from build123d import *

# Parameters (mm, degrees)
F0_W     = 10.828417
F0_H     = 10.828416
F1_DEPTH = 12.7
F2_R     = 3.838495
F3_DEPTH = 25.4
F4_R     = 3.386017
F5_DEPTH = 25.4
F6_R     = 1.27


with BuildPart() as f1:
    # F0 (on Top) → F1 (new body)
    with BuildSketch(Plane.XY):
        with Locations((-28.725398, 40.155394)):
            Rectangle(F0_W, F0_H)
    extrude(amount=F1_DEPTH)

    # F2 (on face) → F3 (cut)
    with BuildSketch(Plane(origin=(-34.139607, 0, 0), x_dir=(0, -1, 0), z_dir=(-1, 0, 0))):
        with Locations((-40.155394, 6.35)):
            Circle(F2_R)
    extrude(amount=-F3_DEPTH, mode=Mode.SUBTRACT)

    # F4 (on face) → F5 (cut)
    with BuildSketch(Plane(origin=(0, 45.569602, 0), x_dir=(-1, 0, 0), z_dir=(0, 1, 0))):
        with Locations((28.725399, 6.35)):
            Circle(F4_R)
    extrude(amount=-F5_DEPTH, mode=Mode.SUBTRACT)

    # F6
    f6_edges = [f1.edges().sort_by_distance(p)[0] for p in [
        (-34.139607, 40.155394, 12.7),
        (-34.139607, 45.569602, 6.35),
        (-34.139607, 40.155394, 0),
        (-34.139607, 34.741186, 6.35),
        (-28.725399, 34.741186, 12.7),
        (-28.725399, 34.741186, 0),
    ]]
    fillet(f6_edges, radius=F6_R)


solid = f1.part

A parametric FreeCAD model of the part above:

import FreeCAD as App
import Part
import Sketcher
from FreeCAD import Vector
Q = App.Units.Quantity


def edges_at(feature, points):
    """Names of the edges that pass closest to the given points."""
    edges = feature.Shape.Edges
    near = lambda p: min(range(len(edges)), key=lambda i: edges[i].distToShape(Part.Vertex(*p))[0])
    return sorted({f"Edge{near(p) + 1}" for p in points})

doc = App.newDocument("Part")
params = doc.addObject("Spreadsheet::Sheet", "Params")
for row, (alias, value) in enumerate([
    ("pad1_length", "0.5 in"),
    ("pocket1_length", "1 in"),
    ("pocket2_length", "1 in"),
    ("fillet_radius", "0.05 in"),
], start=1):
    params.set(f"A{row}", alias)
    params.set(f"B{row}", "=" + value)
    params.setAlias(f"B{row}", alias)

body = doc.addObject("PartDesign::Body", "Body")

sketch1 = doc.addObject("Sketcher::SketchObject", "Sketch")
body.addObject(sketch1)
sketch1.AttachmentSupport = (doc.XY_Plane, [""])
sketch1.MapMode = "FlatFace"
sketch1.addGeometry(Part.LineSegment(Vector(-34.139606, 45.569602, 0), Vector(-34.139606, 34.741186, 0)), False)
sketch1.addGeometry(Part.LineSegment(Vector(-34.139606, 34.741186, 0), Vector(-23.31119, 34.741186, 0)), False)
sketch1.addGeometry(Part.LineSegment(Vector(-23.31119, 34.741186, 0), Vector(-23.31119, 45.569602, 0)), False)
sketch1.addGeometry(Part.LineSegment(Vector(-23.31119, 45.569602, 0), Vector(-34.139606, 45.569602, 0)), False)
sketch1.addConstraint(Sketcher.Constraint("Coincident", 0, 2, 1, 1))
sketch1.addConstraint(Sketcher.Constraint("Coincident", 1, 2, 2, 1))
sketch1.addConstraint(Sketcher.Constraint("Coincident", 2, 2, 3, 1))
sketch1.addConstraint(Sketcher.Constraint("Coincident", 3, 2, 0, 1))
sketch1.addConstraint(Sketcher.Constraint("Vertical", 0))
sketch1.addConstraint(Sketcher.Constraint("Horizontal", 1))
sketch1.addConstraint(Sketcher.Constraint("Vertical", 2))
sketch1.addConstraint(Sketcher.Constraint("Horizontal", 3))
sketch1.addConstraint(Sketcher.Constraint("Equal", 3, 0))
sketch1.addConstraint(Sketcher.Constraint("DistanceX", 1, 1, 1, 2, Q("10.828417 mm")))
sketch1.addConstraint(Sketcher.Constraint("DistanceX", 1, 2, -1, 1, Q("23.31119 mm")))
sketch1.addConstraint(Sketcher.Constraint("DistanceY", -1, 1, 0, 2, Q("34.741186 mm")))
pad1 = doc.addObject("PartDesign::Pad", "Pad")
body.addObject(pad1)
pad1.Profile = sketch1
pad1.setExpression("Length", "Params.pad1_length")

sketch2 = doc.addObject("Sketcher::SketchObject", "Sketch001")
body.addObject(sketch2)
sketch2.AttachmentSupport = (doc.YZ_Plane, [""])
sketch2.MapMode = "FlatFace"
sketch2.AttachmentOffset = App.Placement(Vector(0, 0, -34.139607), App.Rotation())
sketch2.addGeometry(Part.Circle(Vector(40.155394, 6.35, 0), Vector(0, 0, 1), 3.838495), False)
sketch2.addConstraint(Sketcher.Constraint("DistanceY", -1, 1, 0, 3, Q("0.25 in")))
sketch2.addConstraint(Sketcher.Constraint("Diameter", 0, Q("7.67699 mm")))
sketch2.addConstraint(Sketcher.Constraint("DistanceX", -1, 1, 0, 3, Q("40.155394 mm")))
pocket1 = doc.addObject("PartDesign::Pocket", "Pocket")
body.addObject(pocket1)
pocket1.Profile = sketch2
pocket1.setExpression("Length", "Params.pocket1_length")
pocket1.Reversed = True

sketch3 = doc.addObject("Sketcher::SketchObject", "Sketch002")
body.addObject(sketch3)
sketch3.AttachmentSupport = (doc.XZ_Plane, [""])
sketch3.MapMode = "FlatFace"
sketch3.AttachmentOffset = App.Placement(Vector(0, 0, -45.569602), App.Rotation())
sketch3.addGeometry(Part.Circle(Vector(-28.725399, 6.35, 0), Vector(0, 0, 1), 3.386017), False)
sketch3.addConstraint(Sketcher.Constraint("DistanceY", -1, 1, 0, 3, Q("0.25 in")))
sketch3.addConstraint(Sketcher.Constraint("Diameter", 0, Q("6.772034 mm")))
sketch3.addConstraint(Sketcher.Constraint("DistanceX", 0, 3, -1, 1, Q("28.725399 mm")))
pocket2 = doc.addObject("PartDesign::Pocket", "Pocket001")
body.addObject(pocket2)
pocket2.Profile = sketch3
pocket2.setExpression("Length", "Params.pocket2_length")
pocket2.Reversed = True
doc.recompute()

fillet = doc.addObject("PartDesign::Fillet", "Fillet")
body.addObject(fillet)
fillet.Base = (pocket2, edges_at(pocket2, [
    (-34.14, 40.155, 12.7),
    (-34.14, 45.57, 6.35),
    (-34.14, 40.155, 0),
    (-34.14, 34.741, 6.35),
    (-28.725, 34.741, 12.7),
    (-28.725, 34.741, 0),
]))
fillet.setExpression("Radius", "Params.fillet_radius")

doc.recompute()
